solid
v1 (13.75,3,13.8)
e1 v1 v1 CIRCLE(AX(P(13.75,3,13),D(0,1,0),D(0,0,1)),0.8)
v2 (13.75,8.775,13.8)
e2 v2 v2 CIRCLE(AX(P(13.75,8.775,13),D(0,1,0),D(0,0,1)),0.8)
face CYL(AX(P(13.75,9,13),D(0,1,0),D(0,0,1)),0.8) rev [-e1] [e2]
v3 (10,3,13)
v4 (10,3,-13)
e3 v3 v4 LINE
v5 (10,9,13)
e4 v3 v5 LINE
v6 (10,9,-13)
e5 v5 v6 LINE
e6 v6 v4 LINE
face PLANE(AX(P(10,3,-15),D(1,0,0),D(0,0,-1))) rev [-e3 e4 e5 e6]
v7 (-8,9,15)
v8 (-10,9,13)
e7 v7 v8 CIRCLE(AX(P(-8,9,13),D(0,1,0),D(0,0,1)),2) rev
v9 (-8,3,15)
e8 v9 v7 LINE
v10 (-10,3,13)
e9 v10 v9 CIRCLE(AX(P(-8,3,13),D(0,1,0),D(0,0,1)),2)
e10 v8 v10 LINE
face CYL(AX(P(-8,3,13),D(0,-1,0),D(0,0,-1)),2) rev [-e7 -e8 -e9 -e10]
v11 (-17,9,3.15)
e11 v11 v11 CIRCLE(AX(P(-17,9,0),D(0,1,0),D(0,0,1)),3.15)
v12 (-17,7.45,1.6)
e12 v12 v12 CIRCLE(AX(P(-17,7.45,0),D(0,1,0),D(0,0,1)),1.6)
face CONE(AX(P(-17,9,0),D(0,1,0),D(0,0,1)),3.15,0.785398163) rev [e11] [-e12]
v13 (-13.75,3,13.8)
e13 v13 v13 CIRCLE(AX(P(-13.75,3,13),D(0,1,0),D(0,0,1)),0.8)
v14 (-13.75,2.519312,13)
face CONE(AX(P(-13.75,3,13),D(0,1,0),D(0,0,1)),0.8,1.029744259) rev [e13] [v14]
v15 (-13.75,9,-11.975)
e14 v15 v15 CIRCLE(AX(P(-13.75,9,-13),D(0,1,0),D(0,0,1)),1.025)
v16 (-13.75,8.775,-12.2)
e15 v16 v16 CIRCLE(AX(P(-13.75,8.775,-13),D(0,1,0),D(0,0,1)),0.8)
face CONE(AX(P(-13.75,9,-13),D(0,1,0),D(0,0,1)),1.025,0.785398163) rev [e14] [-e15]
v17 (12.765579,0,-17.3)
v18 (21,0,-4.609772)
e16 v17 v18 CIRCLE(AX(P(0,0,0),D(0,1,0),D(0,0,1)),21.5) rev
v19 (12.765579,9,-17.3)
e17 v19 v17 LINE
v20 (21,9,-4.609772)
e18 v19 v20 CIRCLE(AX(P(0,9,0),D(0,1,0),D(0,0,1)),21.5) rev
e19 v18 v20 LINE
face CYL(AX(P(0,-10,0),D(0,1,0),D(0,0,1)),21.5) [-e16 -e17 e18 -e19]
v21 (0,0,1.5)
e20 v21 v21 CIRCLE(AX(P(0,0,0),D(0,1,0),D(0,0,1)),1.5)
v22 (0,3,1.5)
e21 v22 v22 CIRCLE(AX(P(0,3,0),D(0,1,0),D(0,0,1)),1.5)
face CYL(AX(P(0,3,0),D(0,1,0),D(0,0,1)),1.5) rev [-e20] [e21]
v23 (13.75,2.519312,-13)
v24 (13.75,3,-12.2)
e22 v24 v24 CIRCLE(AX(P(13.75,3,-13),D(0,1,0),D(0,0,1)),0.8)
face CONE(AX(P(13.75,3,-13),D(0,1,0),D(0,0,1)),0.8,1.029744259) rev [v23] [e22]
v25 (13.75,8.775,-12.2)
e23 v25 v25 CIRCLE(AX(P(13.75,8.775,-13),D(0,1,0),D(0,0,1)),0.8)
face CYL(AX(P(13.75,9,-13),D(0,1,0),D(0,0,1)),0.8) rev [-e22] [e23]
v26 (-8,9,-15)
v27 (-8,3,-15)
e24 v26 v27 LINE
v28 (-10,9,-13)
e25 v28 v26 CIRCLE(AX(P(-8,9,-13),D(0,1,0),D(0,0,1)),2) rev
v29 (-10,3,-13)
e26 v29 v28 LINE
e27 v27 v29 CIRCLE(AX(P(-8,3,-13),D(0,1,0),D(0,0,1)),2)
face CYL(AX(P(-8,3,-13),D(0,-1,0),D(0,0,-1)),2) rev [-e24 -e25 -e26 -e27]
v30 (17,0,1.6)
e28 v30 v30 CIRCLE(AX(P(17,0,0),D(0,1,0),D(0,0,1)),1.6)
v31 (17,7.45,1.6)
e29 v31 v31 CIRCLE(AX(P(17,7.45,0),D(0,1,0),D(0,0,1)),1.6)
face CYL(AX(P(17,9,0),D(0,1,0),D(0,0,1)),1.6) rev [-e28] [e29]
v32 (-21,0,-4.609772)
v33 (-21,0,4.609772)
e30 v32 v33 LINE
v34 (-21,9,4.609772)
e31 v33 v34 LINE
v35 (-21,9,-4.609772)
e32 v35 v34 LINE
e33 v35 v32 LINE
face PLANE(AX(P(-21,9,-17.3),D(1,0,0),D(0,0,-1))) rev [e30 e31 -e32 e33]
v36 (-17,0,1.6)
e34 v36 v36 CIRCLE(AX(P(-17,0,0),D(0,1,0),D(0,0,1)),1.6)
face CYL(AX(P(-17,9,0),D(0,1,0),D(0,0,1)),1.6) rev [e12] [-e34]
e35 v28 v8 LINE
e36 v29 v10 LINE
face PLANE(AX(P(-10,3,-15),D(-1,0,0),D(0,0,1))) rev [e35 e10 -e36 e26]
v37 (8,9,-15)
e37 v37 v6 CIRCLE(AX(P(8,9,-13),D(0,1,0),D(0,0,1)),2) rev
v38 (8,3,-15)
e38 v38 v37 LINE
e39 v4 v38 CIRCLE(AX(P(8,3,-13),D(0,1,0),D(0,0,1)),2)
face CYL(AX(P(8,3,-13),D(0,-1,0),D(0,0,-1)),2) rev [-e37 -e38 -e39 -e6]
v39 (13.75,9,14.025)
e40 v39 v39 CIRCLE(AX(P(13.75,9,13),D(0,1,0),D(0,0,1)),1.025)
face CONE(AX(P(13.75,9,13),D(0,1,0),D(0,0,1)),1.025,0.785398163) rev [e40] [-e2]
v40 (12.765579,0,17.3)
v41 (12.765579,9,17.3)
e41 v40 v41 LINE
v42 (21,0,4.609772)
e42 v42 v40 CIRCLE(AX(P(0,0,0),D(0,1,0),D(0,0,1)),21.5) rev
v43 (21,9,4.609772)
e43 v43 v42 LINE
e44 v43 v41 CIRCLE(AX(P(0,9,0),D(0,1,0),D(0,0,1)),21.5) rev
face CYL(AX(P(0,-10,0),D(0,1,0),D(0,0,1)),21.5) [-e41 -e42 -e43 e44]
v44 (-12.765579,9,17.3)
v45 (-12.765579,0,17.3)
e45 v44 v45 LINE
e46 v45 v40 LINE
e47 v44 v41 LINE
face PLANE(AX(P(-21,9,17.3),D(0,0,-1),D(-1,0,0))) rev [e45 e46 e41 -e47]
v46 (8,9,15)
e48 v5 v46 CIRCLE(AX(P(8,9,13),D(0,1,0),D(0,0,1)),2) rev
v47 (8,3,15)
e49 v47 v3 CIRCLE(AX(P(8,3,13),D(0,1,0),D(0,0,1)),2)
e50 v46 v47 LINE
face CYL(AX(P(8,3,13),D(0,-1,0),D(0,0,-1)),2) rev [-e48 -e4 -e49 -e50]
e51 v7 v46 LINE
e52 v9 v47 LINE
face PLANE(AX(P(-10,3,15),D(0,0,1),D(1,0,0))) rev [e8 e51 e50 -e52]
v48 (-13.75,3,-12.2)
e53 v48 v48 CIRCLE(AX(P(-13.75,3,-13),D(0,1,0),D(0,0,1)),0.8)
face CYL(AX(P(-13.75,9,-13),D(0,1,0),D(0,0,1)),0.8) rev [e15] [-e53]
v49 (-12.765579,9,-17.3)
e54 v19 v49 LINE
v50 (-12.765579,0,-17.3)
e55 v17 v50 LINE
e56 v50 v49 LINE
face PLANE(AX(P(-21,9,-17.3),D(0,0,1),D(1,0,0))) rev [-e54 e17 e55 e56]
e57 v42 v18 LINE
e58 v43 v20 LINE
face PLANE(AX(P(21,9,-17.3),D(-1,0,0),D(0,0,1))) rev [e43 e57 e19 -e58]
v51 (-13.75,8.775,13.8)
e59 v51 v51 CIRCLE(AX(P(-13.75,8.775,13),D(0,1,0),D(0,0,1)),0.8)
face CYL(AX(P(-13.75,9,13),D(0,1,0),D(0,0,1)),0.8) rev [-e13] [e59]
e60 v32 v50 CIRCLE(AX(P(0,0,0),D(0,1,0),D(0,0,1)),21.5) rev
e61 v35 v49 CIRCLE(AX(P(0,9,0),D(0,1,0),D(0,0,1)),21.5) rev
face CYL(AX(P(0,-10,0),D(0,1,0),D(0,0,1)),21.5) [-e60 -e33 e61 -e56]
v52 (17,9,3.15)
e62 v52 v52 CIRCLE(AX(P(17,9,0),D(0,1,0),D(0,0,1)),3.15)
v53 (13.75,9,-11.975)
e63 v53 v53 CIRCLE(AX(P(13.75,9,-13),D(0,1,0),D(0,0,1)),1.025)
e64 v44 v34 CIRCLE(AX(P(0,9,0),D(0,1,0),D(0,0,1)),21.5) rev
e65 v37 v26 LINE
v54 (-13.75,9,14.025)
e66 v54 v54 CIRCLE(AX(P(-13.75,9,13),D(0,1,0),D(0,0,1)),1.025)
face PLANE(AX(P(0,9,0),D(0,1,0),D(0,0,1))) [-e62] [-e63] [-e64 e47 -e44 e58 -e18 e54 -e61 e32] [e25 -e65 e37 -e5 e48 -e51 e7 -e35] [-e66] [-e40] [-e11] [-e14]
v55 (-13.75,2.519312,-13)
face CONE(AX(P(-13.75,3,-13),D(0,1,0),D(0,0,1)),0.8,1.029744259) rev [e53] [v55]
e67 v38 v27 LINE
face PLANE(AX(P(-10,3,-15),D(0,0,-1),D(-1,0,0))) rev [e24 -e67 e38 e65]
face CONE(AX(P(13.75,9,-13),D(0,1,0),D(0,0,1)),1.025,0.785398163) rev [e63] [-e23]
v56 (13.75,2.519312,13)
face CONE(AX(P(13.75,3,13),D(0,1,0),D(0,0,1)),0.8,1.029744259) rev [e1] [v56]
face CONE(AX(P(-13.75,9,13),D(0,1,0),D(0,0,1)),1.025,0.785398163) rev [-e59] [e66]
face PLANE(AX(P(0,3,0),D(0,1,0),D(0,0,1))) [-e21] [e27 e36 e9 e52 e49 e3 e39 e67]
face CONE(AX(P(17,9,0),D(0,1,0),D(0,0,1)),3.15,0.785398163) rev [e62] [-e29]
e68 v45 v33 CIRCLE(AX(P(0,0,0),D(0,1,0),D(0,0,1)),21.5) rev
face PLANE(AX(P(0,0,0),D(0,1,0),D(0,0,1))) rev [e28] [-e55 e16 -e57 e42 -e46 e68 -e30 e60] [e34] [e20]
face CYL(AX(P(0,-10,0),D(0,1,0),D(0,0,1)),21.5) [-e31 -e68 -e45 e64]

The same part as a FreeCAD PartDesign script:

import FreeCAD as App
import Part
import Sketcher
Q = App.Units.Quantity


def edges_at(feature, points):
    """Names of the edges that pass closest to the given points."""
    edges = feature.Shape.Edges
    near = lambda p: min(range(len(edges)), key=lambda i: edges[i].distToShape(Part.Vertex(*p))[0])
    return sorted({f"Edge{near(p) + 1}" for p in points})


def add_polygon(sketch, points):
    """Adds a closed chain of lines whose ends are joined by coincident constraints."""
    first, n = sketch.GeometryCount, len(points)
    for a, b in zip(points, points[1:] + points[:1]):
        sketch.addGeometry(Part.LineSegment(App.Vector(*a, 0), App.Vector(*b, 0)), False)
    for i in range(n):
        sketch.addConstraint(Sketcher.Constraint("Coincident", first + i, 2, first + (i + 1) % n, 1))

doc = App.newDocument("Part")
body = doc.addObject("PartDesign::Body", "Body")

sketch1 = body.newObject("Sketcher::SketchObject", "Sketch")
sketch1.AttachmentSupport = (doc.getObject("XZ_Plane"), [""])
sketch1.MapMode = "FlatFace"
add_polygon(sketch1, [(-21, -17), (-21, 17), (21, 17), (21, -17)])
sketch1.addConstraint([
    Sketcher.Constraint("Vertical", 0),
    Sketcher.Constraint("Horizontal", 1),
    Sketcher.Constraint("Vertical", 2),
    Sketcher.Constraint("Horizontal", 3),
    Sketcher.Constraint("Symmetric", 0, 2, 2, 2, -1, 1),
    Sketcher.Constraint("DistanceX", 1, 1, 1, 2, Q("42 mm")),
    Sketcher.Constraint("DistanceY", 0, 1, 0, 2, Q("34.6 mm")),
])
pad1 = body.newObject("PartDesign::Pad", "Pad")
pad1.Profile = sketch1
pad1.Length = 9
pad1.Reversed = True

sketch2 = body.newObject("Sketcher::SketchObject", "Sketch001")
sketch2.AttachmentSupport = (doc.getObject("XZ_Plane"), [""])
sketch2.MapMode = "FlatFace"
sketch2.AttachmentOffset = App.Placement(App.Vector(0, 0, -9), App.Rotation())
sketch2.addGeometry([
    Part.Circle(App.Vector(-17, 0, 0), App.Vector(0, 0, 1), 1.6),
    Part.Circle(App.Vector(17, 0, 0), App.Vector(0, 0, 1), 1.6),
], False)
sketch2.addConstraint([
    Sketcher.Constraint("Equal", 0, 1),
    Sketcher.Constraint("Symmetric", 0, 3, 1, 3, -1, 1),
    Sketcher.Constraint("PointOnObject", 0, 3, -1),
    Sketcher.Constraint("Diameter", 0, Q("3.2 mm")),
    Sketcher.Constraint("DistanceX", 0, 3, -1, 1, Q("17 mm")),
])
doc.recompute()
hole = body.newObject("PartDesign::Hole", "Hole")
hole.Profile = sketch2
hole.ThreadType = "None"
hole.Diameter = 3.2
hole.DepthType = "Dimension"
hole.Depth = 12.4
hole.DrillPoint = "Angled"
hole.DrillPointAngle = 118
hole.HoleCutType = "Countersink"
hole.HoleCutDiameter = 6.3
hole.HoleCutCountersinkAngle = 90
hole.Reversed = True

sketch3 = body.newObject("Sketcher::SketchObject", "Sketch002")
sketch3.AttachmentSupport = (doc.getObject("XZ_Plane"), [""])
sketch3.MapMode = "FlatFace"
sketch3.AttachmentOffset = App.Placement(App.Vector(0, 0, -9), App.Rotation())
add_polygon(sketch3, [(-10, -15), (-10, 15), (10, 15), (10, -15)])
sketch3.addConstraint([
    Sketcher.Constraint("Vertical", 0),
    Sketcher.Constraint("Horizontal", 1),
    Sketcher.Constraint("Vertical", 2),
    Sketcher.Constraint("Horizontal", 3),
    Sketcher.Constraint("Symmetric", 0, 2, 2, 2, -1, 1),
    Sketcher.Constraint("DistanceX", 1, 1, 1, 2, Q("20 mm")),
    Sketcher.Constraint("DistanceY", 0, 1, 0, 2, Q("30 mm")),
])
pocket1 = body.newObject("PartDesign::Pocket", "Pocket")
pocket1.Profile = sketch3
pocket1.Length = 6
pocket1.Reversed = True

sketch4 = body.newObject("Sketcher::SketchObject", "Sketch003")
sketch4.AttachmentSupport = (doc.getObject("XZ_Plane"), [""])
sketch4.MapMode = "FlatFace"
sketch4.AttachmentOffset = App.Placement(App.Vector(0, 0, -9), App.Rotation())
sketch4.addGeometry([
    Part.Circle(App.Vector(-13.8, -13, 0), App.Vector(0, 0, 1), 0.8),
    Part.Circle(App.Vector(13.8, -13, 0), App.Vector(0, 0, 1), 0.8),
    Part.Circle(App.Vector(13.8, 13, 0), App.Vector(0, 0, 1), 0.8),
    Part.Circle(App.Vector(-13.8, 13, 0), App.Vector(0, 0, 1), 0.8),
], False)
sketch4.addConstraint([
    Sketcher.Constraint("Equal", 0, 1),
    Sketcher.Constraint("Equal", 1, 2),
    Sketcher.Constraint("Equal", 2, 3),
    Sketcher.Constraint("Symmetric", 0, 3, 2, 3, -1, 1),
    Sketcher.Constraint("Symmetric", 1, 3, 3, 3, -1, 1),
    Sketcher.Constraint("Symmetric", 0, 3, 1, 3, -2),
    Sketcher.Constraint("Diameter", 0, Q("1.6 mm")),
    Sketcher.Constraint("DistanceY", 0, 3, -1, 1, Q("13 mm")),
    Sketcher.Constraint("DistanceX", 0, 3, 1, 3, Q("27.5 mm")),
])
doc.recompute()
hole2 = body.newObject("PartDesign::Hole", "Hole001")
hole2.Profile = sketch4
hole2.ThreadType = "None"
hole2.Diameter = 1.6
hole2.DepthType = "Dimension"
hole2.Depth = 6
hole2.DrillPoint = "Angled"
hole2.DrillPointAngle = 118
hole2.HoleCutType = "Countersink"
hole2.HoleCutDiameter = 2.05
hole2.HoleCutCountersinkAngle = 90
hole2.Reversed = True
doc.recompute()

fillet = body.newObject("PartDesign::Fillet", "Fillet")
fillet.Base = (hole2, edges_at(hole2, [
    (-10, 6, 15),
    (-10, 6, -15),
    (10, 6, -15),
    (10, 6, 15),
]))
fillet.Radius = 2

sketch5 = body.newObject("Sketcher::SketchObject", "Sketch004")
sketch5.AttachmentSupport = (doc.getObject("XZ_Plane"), [""])
sketch5.MapMode = "FlatFace"
sketch5.AttachmentOffset = App.Placement(App.Vector(0, 0, -3), App.Rotation())
sketch5.addGeometry(Part.Circle(App.Vector(0, 0, 0), App.Vector(0, 0, 1), 1.5), False)
sketch5.addConstraint([
    Sketcher.Constraint("Coincident", 0, 3, -1, 1),
    Sketcher.Constraint("Diameter", 0, Q("3 mm")),
])
doc.recompute()
hole3 = body.newObject("PartDesign::Hole", "Hole002")
hole3.Profile = sketch5
hole3.ThreadType = "None"
hole3.Diameter = 3
hole3.DepthType = "ThroughAll"
hole3.Reversed = True

sketch6 = body.newObject("Sketcher::SketchObject", "Sketch005")
sketch6.AttachmentSupport = (doc.getObject("XZ_Plane"), [""])
sketch6.MapMode = "FlatFace"
sketch6.addGeometry([
    Part.Circle(App.Vector(0, 0, 0), App.Vector(0, 0, 1), 32),
    Part.Circle(App.Vector(0, 0, 0), App.Vector(0, 0, 1), 22),
], False)
sketch6.addConstraint([
    Sketcher.Constraint("Coincident", 0, 3, -1, 1),
    Sketcher.Constraint("Coincident", 1, 3, -1, 1),
    Sketcher.Constraint("Diameter", 0, Q("63 mm")),
    Sketcher.Constraint("Diameter", 1, Q("43 mm")),
])
pocket2 = body.newObject("PartDesign::Pocket", "Pocket001")
pocket2.Profile = sketch6
pocket2.Type = "ThroughAll"
pocket2.Midplane = True

doc.recompute()
